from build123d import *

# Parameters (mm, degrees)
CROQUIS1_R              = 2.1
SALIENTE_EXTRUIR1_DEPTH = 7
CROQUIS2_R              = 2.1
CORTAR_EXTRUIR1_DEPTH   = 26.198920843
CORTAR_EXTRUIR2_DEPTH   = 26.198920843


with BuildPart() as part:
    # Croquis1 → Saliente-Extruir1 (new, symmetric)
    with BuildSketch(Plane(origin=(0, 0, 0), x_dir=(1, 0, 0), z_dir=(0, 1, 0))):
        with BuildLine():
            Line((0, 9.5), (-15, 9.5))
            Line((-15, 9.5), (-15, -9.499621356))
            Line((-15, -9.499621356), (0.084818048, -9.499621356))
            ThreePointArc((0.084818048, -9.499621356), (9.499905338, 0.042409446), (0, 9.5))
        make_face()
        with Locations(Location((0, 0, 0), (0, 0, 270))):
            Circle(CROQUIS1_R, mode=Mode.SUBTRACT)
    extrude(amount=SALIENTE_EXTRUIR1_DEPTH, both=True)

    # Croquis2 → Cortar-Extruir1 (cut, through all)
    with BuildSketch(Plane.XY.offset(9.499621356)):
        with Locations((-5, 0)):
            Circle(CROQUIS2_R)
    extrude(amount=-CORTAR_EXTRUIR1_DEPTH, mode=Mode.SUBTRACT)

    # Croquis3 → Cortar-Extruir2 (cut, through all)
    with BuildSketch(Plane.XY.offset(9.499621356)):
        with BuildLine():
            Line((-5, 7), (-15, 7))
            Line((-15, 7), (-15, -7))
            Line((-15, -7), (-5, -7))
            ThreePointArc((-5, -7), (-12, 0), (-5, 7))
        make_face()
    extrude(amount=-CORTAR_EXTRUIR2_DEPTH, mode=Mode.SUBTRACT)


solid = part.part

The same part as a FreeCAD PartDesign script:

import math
import FreeCAD as App
import Part
import Sketcher
from FreeCAD import Vector

doc = App.newDocument("Part")
params = doc.addObject("Spreadsheet::Sheet", "Params")
for row, (alias, value) in enumerate([
    ("sketch1_diameter", "4.2 mm"),
    ("sketch1_radius", "9.5 mm"),
    ("sketch1_width", "15 mm"),
    ("pad1_length", "14 mm"),
    ("sketch2_diameter", "4.2 mm"),
    ("sketch3_radius", "7 mm"),
    ("sketch3_width", "10 mm"),
], start=1):
    params.set(f"A{row}", alias)
    params.set(f"B{row}", "=" + value)
    params.setAlias(f"B{row}", alias)

body = doc.addObject("PartDesign::Body", "Body")

# Sketch on XZ plane
sketch1 = body.newObject("Sketcher::SketchObject", "Sketch")
sketch1.AttachmentSupport = (doc.getObject("XZ_Plane"), [""])
sketch1.MapMode = "FlatFace"
sketch1.addGeometry(Part.LineSegment(Vector(0, -9.5, 0), Vector(-15, -9.5, 0)), False)
sketch1.addGeometry(Part.LineSegment(Vector(-15, -9.5, 0), Vector(-15, 9.499621, 0)), False)
sketch1.addGeometry(Part.LineSegment(Vector(-15, 9.499621, 0), Vector(0.084818, 9.499621, 0)), False)
sketch1.addGeometry(Part.ArcOfCircle(Part.Circle(Vector(0, 0, 0), Vector(0, 0, 1), 9.5), math.radians(-90), math.radians(89.488444)), False)
sketch1.addGeometry(Part.Circle(Vector(0, 0, 0), Vector(0, 0, 1), 2.1), False)
sketch1.addConstraint(Sketcher.Constraint("Coincident", 0, 2, 1, 1))
sketch1.addConstraint(Sketcher.Constraint("Coincident", 1, 2, 2, 1))
sketch1.addConstraint(Sketcher.Constraint("Coincident", 2, 2, 3, 2))
sketch1.addConstraint(Sketcher.Constraint("Tangent", 3, 1, 0, 1))
sketch1.addConstraint(Sketcher.Constraint("Horizontal", 0))
sketch1.addConstraint(Sketcher.Constraint("Vertical", 1))
sketch1.addConstraint(Sketcher.Constraint("Horizontal", 2))
sketch1.addConstraint(Sketcher.Constraint("Coincident", 3, 3, -1, 1))
sketch1.addConstraint(Sketcher.Constraint("Coincident", 4, 3, -1, 1))
sketch1.addConstraint(Sketcher.Constraint("Diameter", 4, 4.2))
sketch1.addConstraint(Sketcher.Constraint("Radius", 3, 9.5))
sketch1.addConstraint(Sketcher.Constraint("DistanceX", 0, 2, 0, 1, 15.0))
sketch1.addConstraint(Sketcher.Constraint("DistanceX", 2, 1, 2, 2, 15.084818))
sketch1.setExpression("Constraints[9]", "Params.sketch1_diameter")
sketch1.setExpression("Constraints[10]", "Params.sketch1_radius")
sketch1.setExpression("Constraints[11]", "Params.sketch1_width")
pad1 = body.newObject("PartDesign::Pad", "Pad")
pad1.Profile = sketch1
pad1.setExpression("Length", "Params.pad1_length")
pad1.Midplane = True

# Sketch on XY plane
sketch2 = body.newObject("Sketcher::SketchObject", "Sketch001")
sketch2.AttachmentSupport = (doc.getObject("XY_Plane"), [""])
sketch2.MapMode = "FlatFace"
sketch2.AttachmentOffset = App.Placement(Vector(0, 0, 9.499621), App.Rotation())
sketch2.addGeometry(Part.Circle(Vector(-5, 0, 0), Vector(0, 0, 1), 2.1), False)
sketch2.addConstraint(Sketcher.Constraint("PointOnObject", 0, 3, -1))
sketch2.addConstraint(Sketcher.Constraint("Diameter", 0, 4.2))
sketch2.addConstraint(Sketcher.Constraint("DistanceX", 0, 3, -1, 1, 5.0))
sketch2.setExpression("Constraints[1]", "Params.sketch2_diameter")
pocket1 = body.newObject("PartDesign::Pocket", "Pocket")
pocket1.Profile = sketch2
pocket1.Type = "ThroughAll"

# Sketch on XY plane
sketch3 = body.newObject("Sketcher::SketchObject", "Sketch002")
sketch3.AttachmentSupport = (doc.getObject("XY_Plane"), [""])
sketch3.MapMode = "FlatFace"
sketch3.AttachmentOffset = App.Placement(Vector(0, 0, 9.499621), App.Rotation())
sketch3.addGeometry(Part.LineSegment(Vector(-5, 7, 0), Vector(-15, 7, 0)), False)
sketch3.addGeometry(Part.LineSegment(Vector(-15, 7, 0), Vector(-15, -7, 0)), False)
sketch3.addGeometry(Part.LineSegment(Vector(-15, -7, 0), Vector(-5, -7, 0)), False)
sketch3.addGeometry(Part.ArcOfCircle(Part.Circle(Vector(-5, 0, 0), Vector(0, 0, 1), 7), math.radians(90), math.radians(270)), False)
sketch3.addConstraint(Sketcher.Constraint("Coincident", 0, 2, 1, 1))
sketch3.addConstraint(Sketcher.Constraint("Coincident", 1, 2, 2, 1))
sketch3.addConstraint(Sketcher.Constraint("Tangent", 2, 2, 3, 2))
sketch3.addConstraint(Sketcher.Constraint("Tangent", 3, 1, 0, 1))
sketch3.addConstraint(Sketcher.Constraint("Horizontal", 0))
sketch3.addConstraint(Sketcher.Constraint("Vertical", 1))
sketch3.addConstraint(Sketcher.Constraint("Horizontal", 2))
sketch3.addConstraint(Sketcher.Constraint("PointOnObject", 3, 3, -1))
sketch3.addConstraint(Sketcher.Constraint("Radius", 3, 7.0))
sketch3.addConstraint(Sketcher.Constraint("DistanceX", 0, 2, 0, 1, 10.0))
sketch3.addConstraint(Sketcher.Constraint("DistanceX", 3, 3, -1, 1, 5.0))
sketch3.setExpression("Constraints[8]", "Params.sketch3_radius")
sketch3.setExpression("Constraints[9]", "Params.sketch3_width")
pocket2 = body.newObject("PartDesign::Pocket", "Pocket001")
pocket2.Profile = sketch3
pocket2.Type = "ThroughAll"

doc.recompute()
